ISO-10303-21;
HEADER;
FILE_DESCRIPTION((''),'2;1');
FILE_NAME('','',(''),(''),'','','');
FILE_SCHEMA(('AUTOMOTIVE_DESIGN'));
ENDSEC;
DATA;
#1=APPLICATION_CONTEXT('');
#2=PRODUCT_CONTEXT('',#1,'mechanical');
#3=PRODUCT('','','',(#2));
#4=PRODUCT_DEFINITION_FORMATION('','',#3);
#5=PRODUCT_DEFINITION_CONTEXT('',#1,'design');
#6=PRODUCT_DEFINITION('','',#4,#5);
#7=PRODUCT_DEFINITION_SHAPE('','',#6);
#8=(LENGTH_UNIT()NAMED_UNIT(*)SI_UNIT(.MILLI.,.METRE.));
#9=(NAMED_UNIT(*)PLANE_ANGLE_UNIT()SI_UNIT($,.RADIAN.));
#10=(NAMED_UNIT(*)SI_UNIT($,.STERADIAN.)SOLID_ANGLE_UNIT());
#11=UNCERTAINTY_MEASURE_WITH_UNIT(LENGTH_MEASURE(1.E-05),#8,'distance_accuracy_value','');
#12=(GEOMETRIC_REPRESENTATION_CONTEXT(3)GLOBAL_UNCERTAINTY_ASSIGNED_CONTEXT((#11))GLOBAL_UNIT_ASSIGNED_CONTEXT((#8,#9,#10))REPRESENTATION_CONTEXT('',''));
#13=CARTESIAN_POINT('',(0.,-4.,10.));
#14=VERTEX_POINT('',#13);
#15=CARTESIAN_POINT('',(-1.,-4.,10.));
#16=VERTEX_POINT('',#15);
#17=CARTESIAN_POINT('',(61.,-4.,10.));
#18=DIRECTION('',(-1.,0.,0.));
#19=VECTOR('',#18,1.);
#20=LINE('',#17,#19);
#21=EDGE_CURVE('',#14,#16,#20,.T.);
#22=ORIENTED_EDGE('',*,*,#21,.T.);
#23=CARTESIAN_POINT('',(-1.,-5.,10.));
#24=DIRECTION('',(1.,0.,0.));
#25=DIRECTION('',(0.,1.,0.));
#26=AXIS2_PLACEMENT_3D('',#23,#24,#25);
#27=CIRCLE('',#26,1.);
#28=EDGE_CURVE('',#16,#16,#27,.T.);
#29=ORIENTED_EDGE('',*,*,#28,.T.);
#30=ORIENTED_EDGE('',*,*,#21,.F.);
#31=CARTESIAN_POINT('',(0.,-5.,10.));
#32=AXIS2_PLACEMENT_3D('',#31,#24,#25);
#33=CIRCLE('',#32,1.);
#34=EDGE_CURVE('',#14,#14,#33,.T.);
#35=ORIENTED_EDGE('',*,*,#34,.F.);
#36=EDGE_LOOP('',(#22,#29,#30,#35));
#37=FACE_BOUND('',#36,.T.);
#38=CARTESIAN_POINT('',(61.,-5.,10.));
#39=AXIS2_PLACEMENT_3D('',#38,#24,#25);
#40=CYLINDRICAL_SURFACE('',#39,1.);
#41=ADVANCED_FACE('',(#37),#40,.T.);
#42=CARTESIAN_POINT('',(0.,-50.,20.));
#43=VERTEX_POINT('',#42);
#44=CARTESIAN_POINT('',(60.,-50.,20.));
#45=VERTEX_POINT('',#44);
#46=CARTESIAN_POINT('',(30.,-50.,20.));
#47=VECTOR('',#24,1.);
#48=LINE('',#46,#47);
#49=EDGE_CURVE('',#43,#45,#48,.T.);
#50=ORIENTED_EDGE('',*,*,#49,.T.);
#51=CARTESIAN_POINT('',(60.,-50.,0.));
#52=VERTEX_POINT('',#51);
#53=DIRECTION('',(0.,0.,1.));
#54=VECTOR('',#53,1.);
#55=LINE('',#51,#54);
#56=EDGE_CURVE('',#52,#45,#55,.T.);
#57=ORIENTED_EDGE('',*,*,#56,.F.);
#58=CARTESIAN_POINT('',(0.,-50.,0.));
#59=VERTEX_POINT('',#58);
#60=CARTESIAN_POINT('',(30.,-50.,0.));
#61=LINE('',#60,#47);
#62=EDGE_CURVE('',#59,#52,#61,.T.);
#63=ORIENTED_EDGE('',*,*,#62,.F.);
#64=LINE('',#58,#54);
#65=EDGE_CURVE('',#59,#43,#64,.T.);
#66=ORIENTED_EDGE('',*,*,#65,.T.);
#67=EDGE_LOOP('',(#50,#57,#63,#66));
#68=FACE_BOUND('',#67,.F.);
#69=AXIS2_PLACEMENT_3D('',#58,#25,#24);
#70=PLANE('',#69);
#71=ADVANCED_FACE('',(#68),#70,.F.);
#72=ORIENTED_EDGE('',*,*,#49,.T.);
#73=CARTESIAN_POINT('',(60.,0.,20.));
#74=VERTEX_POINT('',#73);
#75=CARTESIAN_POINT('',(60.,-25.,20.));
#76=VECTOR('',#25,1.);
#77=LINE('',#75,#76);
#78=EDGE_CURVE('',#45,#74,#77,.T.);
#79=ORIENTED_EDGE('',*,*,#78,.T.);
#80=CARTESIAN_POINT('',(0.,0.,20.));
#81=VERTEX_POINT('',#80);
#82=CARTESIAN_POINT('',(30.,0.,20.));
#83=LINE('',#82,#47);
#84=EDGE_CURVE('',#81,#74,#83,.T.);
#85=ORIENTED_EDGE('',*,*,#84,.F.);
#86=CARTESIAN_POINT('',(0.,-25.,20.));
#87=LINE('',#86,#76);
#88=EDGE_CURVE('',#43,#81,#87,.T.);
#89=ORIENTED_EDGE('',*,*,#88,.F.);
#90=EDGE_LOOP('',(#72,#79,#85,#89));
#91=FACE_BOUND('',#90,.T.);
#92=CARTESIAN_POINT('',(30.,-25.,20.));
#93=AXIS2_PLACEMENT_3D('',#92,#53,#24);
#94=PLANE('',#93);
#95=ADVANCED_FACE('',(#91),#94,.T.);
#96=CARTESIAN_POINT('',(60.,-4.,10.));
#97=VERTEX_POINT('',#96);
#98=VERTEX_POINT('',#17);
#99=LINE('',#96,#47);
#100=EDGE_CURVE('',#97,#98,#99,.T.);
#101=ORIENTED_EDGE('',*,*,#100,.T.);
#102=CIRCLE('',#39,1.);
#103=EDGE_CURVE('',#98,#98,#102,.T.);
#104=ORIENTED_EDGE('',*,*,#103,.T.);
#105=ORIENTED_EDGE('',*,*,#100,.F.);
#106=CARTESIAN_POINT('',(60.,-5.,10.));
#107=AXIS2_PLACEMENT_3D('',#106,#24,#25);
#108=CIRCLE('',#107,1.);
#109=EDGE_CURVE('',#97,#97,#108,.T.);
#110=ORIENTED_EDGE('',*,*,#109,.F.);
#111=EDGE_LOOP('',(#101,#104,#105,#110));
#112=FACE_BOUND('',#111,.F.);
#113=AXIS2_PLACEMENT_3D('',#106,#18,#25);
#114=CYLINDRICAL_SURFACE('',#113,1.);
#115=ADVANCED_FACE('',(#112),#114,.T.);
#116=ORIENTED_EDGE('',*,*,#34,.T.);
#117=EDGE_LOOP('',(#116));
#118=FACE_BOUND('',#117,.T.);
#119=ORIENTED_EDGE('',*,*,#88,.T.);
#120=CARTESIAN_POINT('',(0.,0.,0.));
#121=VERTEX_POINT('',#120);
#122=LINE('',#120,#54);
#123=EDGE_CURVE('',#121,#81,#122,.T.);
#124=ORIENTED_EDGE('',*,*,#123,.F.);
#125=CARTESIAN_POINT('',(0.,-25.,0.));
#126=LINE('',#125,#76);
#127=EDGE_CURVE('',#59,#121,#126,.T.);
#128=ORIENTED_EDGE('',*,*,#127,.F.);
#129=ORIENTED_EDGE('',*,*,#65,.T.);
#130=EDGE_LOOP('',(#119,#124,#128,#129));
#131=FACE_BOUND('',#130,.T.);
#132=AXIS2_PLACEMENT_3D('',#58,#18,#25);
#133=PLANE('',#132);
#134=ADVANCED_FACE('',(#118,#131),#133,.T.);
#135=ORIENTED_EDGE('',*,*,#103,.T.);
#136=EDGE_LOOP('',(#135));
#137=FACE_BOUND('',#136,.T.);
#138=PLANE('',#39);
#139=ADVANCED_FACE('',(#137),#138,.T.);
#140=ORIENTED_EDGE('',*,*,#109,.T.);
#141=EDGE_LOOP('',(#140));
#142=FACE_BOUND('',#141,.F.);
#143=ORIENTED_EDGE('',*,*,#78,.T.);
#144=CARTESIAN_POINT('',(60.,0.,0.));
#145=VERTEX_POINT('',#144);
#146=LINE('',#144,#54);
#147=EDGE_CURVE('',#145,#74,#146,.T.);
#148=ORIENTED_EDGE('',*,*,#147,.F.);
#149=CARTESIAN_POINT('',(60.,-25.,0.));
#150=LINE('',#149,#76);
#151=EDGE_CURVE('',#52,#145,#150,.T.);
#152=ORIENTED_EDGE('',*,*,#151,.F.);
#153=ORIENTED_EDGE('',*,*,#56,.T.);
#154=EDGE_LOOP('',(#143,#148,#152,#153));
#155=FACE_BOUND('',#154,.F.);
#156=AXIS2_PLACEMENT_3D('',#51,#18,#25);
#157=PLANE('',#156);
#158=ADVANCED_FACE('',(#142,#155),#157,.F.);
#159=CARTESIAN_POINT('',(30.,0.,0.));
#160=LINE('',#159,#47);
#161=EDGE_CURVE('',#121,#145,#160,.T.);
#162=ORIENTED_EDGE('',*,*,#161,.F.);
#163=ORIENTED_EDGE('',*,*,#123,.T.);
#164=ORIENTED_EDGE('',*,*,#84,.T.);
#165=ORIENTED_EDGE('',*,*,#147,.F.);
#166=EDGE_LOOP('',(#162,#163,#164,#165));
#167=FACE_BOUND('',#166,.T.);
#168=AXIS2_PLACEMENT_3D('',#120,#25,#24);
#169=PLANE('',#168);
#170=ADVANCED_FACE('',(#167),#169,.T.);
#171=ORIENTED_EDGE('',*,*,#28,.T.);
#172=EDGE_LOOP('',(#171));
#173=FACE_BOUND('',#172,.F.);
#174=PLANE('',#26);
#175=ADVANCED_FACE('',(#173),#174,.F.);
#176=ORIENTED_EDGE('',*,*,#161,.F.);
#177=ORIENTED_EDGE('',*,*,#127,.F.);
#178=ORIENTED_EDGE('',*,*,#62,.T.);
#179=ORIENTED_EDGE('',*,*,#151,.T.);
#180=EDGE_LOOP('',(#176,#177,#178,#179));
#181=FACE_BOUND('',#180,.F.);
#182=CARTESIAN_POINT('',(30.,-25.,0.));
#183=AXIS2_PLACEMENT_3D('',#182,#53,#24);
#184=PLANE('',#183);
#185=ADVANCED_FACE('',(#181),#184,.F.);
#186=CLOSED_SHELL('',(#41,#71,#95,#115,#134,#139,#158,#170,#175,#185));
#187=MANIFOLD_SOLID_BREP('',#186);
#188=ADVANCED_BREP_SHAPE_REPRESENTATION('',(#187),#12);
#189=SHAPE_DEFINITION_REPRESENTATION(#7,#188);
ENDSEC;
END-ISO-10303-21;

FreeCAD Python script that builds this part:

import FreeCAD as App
import Part
import Sketcher
from FreeCAD import Vector
Q = App.Units.Quantity


def add_polygon(sketch, points):
    """Adds a closed chain of lines whose ends are joined by coincident constraints."""
    first, n = sketch.GeometryCount, len(points)
    for a, b in zip(points, points[1:] + points[:1]):
        sketch.addGeometry(Part.LineSegment(App.Vector(*a, 0), App.Vector(*b, 0)), False)
    for i in range(n):
        sketch.addConstraint(Sketcher.Constraint("Coincident", first + i, 2, first + (i + 1) % n, 1))

doc = App.newDocument("Part")
body = doc.addObject("PartDesign::Body", "Body")

# Sketch on XY plane
sketch1 = doc.addObject("Sketcher::SketchObject", "Sketch")
body.addObject(sketch1)
sketch1.AttachmentSupport = (doc.XY_Plane, [""])
sketch1.MapMode = "FlatFace"
add_polygon(sketch1, [(0, 0), (0, -50), (60, -50), (60, 0)])  # lines 0-3
sketch1.addConstraint([
    Sketcher.Constraint("Vertical", 0),
    Sketcher.Constraint("Horizontal", 1),
    Sketcher.Constraint("Vertical", 2),
    Sketcher.Constraint("Horizontal", 3),
    Sketcher.Constraint("Coincident", 3, 2, -1, 1),
    Sketcher.Constraint("DistanceX", 1, 1, 1, 2, Q("60 mm")),
    Sketcher.Constraint("DistanceY", 0, 2, 0, 1, Q("50 mm")),
])
pad1 = doc.addObject("PartDesign::Pad", "Pad")
body.addObject(pad1)
pad1.Profile = sketch1
pad1.Length = 20

# Sketch on YZ plane
sketch2 = doc.addObject("Sketcher::SketchObject", "Sketch001")
body.addObject(sketch2)
sketch2.AttachmentSupport = (doc.YZ_Plane, [""])
sketch2.MapMode = "FlatFace"
sketch2.AttachmentOffset = App.Placement(Vector(0, 0, 60), App.Rotation())
sketch2.addGeometry(Part.Circle(Vector(-5, 10, 0), Vector(0, 0, 1), 1), False)
sketch2.addConstraint([
    Sketcher.Constraint("Diameter", 0, Q("2 mm")),
    Sketcher.Constraint("DistanceX", 0, 3, -1, 1, Q("5 mm")),
    Sketcher.Constraint("DistanceY", -1, 1, 0, 3, Q("10 mm")),
])
pad2 = doc.addObject("PartDesign::Pad", "Pad001")
body.addObject(pad2)
pad2.Profile = sketch2
pad2.Length = 1

# Sketch on YZ plane
sketch3 = doc.addObject("Sketcher::SketchObject", "Sketch002")
body.addObject(sketch3)
sketch3.AttachmentSupport = (doc.YZ_Plane, [""])
sketch3.MapMode = "FlatFace"
sketch3.AttachmentOffset = App.Placement(Vector(0, 0, 61), App.Rotation())
sketch3.addGeometry(Part.Circle(Vector(-5, 10, 0), Vector(0, 0, 1), 1), False)
sketch3.addConstraint([
    Sketcher.Constraint("Diameter", 0, Q("2 mm")),
    Sketcher.Constraint("DistanceX", 0, 3, -1, 1, Q("5 mm")),
    Sketcher.Constraint("DistanceY", -1, 1, 0, 3, Q("10 mm")),
])
pad3 = doc.addObject("PartDesign::Pad", "Pad002")
body.addObject(pad3)
pad3.Profile = sketch3
pad3.Length = 62
pad3.Reversed = True

doc.recompute()
